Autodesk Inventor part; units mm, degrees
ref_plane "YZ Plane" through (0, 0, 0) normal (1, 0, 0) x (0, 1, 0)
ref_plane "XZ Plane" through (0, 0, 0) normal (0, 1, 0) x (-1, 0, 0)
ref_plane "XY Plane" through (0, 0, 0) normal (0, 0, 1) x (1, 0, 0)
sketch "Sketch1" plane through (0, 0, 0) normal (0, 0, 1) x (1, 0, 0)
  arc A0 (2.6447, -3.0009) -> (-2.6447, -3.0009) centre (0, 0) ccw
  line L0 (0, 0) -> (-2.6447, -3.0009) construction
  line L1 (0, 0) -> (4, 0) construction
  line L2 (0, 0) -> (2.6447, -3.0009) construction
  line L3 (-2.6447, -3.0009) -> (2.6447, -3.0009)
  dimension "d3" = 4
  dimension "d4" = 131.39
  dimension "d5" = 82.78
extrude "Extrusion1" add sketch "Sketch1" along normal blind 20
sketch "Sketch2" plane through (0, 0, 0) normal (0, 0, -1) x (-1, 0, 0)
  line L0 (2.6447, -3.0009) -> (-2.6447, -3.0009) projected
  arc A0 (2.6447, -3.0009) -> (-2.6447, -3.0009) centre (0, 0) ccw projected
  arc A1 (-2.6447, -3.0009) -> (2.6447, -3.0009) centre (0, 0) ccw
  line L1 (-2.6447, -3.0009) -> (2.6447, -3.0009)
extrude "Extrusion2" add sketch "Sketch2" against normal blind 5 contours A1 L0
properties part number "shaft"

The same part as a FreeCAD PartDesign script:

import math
import FreeCAD as App
import Part
import Sketcher
Q = App.Units.Quantity

doc = App.newDocument("Part")
params = doc.addObject("Spreadsheet::Sheet", "Params")
for row, (alias, value) in enumerate([
    ("sketch1_radius", "4 mm"),
    ("pad1_length", "20 mm"),
    ("sketch2_radius", "4 mm"),
    ("pad2_length", "5 mm"),
], start=1):
    params.set(f"A{row}", alias)
    params.set(f"B{row}", "=" + value)
    params.setAlias(f"B{row}", alias)

body = doc.addObject("PartDesign::Body", "Body")

sketch1 = doc.addObject("Sketcher::SketchObject", "Sketch")
body.addObject(sketch1)
sketch1.AttachmentSupport = (doc.XY_Plane, [""])
sketch1.MapMode = "FlatFace"
sketch1.addGeometry([
    Part.LineSegment(App.Vector(-2.6447, -3.0009, 0), App.Vector(2.6447, -3.0009, 0)),
    Part.ArcOfCircle(Part.Circle(App.Vector(0, 0, 0), App.Vector(0, 0, 1), 3.99998), math.radians(-48.610199), math.radians(228.610199)),
], False)
sketch1.addConstraint([
    Sketcher.Constraint("Coincident", 0, 1, 1, 2),
    Sketcher.Constraint("Coincident", 1, 1, 0, 2),
    Sketcher.Constraint("Horizontal", 0),
    Sketcher.Constraint("Coincident", 1, 3, -1, 1),
    Sketcher.Constraint("Radius", 1, Q("4 mm")),
    Sketcher.Constraint("DistanceX", 0, 1, 0, 2, Q("5.2894 mm")),
])
sketch1.setExpression("Constraints[4]", "Params.sketch1_radius")
pad1 = doc.addObject("PartDesign::Pad", "Pad")
body.addObject(pad1)
pad1.Profile = sketch1
pad1.setExpression("Length", "Params.pad1_length")

sketch2 = doc.addObject("Sketcher::SketchObject", "Sketch001")
body.addObject(sketch2)
sketch2.AttachmentSupport = (doc.XY_Plane, [""])
sketch2.MapMode = "FlatFace"
sketch2.addGeometry([
    Part.ArcOfCircle(Part.Circle(App.Vector(0, 0, 0), App.Vector(0, 0, 1), 3.99998), math.radians(-131.389801), math.radians(-48.610199)),
    Part.LineSegment(App.Vector(-2.6447, -3.0009, 0), App.Vector(2.6447, -3.0009, 0)),
], False)
sketch2.addConstraint([
    Sketcher.Constraint("Coincident", 0, 1, 1, 1),
    Sketcher.Constraint("Coincident", 1, 2, 0, 2),
    Sketcher.Constraint("Horizontal", 1),
    Sketcher.Constraint("Coincident", 0, 3, -1, 1),
    Sketcher.Constraint("Radius", 0, Q("4 mm")),
    Sketcher.Constraint("DistanceX", 1, 1, 1, 2, Q("5.2894 mm")),
])
sketch2.setExpression("Constraints[4]", "Params.sketch2_radius")
pad2 = doc.addObject("PartDesign::Pad", "Pad001")
body.addObject(pad2)
pad2.Profile = sketch2
pad2.setExpression("Length", "Params.pad2_length")

doc.recompute()
